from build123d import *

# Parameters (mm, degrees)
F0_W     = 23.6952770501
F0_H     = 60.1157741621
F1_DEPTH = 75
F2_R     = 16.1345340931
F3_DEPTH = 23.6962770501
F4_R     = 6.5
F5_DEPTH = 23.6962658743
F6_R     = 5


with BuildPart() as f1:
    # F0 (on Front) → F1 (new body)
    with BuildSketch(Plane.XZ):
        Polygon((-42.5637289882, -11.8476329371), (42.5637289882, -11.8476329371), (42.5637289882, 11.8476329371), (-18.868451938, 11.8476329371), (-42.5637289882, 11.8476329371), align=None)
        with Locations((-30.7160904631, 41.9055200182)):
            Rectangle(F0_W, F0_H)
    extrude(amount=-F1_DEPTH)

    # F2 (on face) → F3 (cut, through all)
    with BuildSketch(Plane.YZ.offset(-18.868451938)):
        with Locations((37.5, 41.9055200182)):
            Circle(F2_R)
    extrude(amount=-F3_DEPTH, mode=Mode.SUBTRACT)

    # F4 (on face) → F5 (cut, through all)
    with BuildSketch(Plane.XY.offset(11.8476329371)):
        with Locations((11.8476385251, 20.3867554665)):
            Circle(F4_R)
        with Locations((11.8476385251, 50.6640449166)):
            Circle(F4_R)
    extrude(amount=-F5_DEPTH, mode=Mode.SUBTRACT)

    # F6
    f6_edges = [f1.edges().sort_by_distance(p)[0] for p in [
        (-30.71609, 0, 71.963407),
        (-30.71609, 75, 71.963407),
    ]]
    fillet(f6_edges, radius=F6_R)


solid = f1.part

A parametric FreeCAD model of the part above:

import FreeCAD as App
import Part
import Sketcher
from FreeCAD import Vector
Q = App.Units.Quantity


def edges_at(feature, points):
    """Names of the edges that pass closest to the given points."""
    edges = feature.Shape.Edges
    near = lambda p: min(range(len(edges)), key=lambda i: edges[i].distToShape(Part.Vertex(*p))[0])
    return sorted({f"Edge{near(p) + 1}" for p in points})

doc = App.newDocument("Part")
params = doc.addObject("Spreadsheet::Sheet", "Params")
for row, (alias, value) in enumerate([
    ("pad1_length", "75 mm"),
    ("sketch3_diameter", "13 mm"),
    ("fillet_radius", "5 mm"),
], start=1):
    params.set(f"A{row}", alias)
    params.set(f"B{row}", "=" + value)
    params.setAlias(f"B{row}", alias)

body = doc.addObject("PartDesign::Body", "Body")

# Sketch on XZ plane
sketch1 = body.newObject("Sketcher::SketchObject", "Sketch")
sketch1.AttachmentSupport = (doc.getObject("XZ_Plane"), [""])
sketch1.MapMode = "FlatFace"
sketch1.addGeometry([
    Part.LineSegment(Vector(-42.563729, -11.847633, 0), Vector(42.563729, -11.847633, 0)),  # 0
    Part.LineSegment(Vector(42.563729, -11.847633, 0), Vector(42.563729, 11.847633, 0)),  # 1
    Part.LineSegment(Vector(42.563729, 11.847633, 0), Vector(-18.868452, 11.847633, 0)),  # 2
    Part.LineSegment(Vector(-18.868452, 11.847633, 0), Vector(-18.868452, 71.963407, 0)),  # 3
    Part.LineSegment(Vector(-18.868452, 71.963407, 0), Vector(-42.563729, 71.963407, 0)),  # 4
    Part.LineSegment(Vector(-42.563729, 71.963407, 0), Vector(-42.563729, -11.847633, 0)),  # 5
], False)
sketch1.addConstraint([
    Sketcher.Constraint("Coincident", 0, 2, 1, 1),
    Sketcher.Constraint("Coincident", 1, 2, 2, 1),
    Sketcher.Constraint("Coincident", 2, 2, 3, 1),
    Sketcher.Constraint("Coincident", 3, 2, 4, 1),
    Sketcher.Constraint("Coincident", 4, 2, 5, 1),
    Sketcher.Constraint("Coincident", 5, 2, 0, 1),
    Sketcher.Constraint("Horizontal", 0),
    Sketcher.Constraint("Vertical", 1),
    Sketcher.Constraint("Horizontal", 2),
    Sketcher.Constraint("Vertical", 3),
    Sketcher.Constraint("Horizontal", 4),
    Sketcher.Constraint("Vertical", 5),
    Sketcher.Constraint("Symmetric", 1, 2, 5, 2, -1, 1),
    Sketcher.Constraint("DistanceX", 2, 2, 2, 1, Q("61.432181 mm")),
    Sketcher.Constraint("DistanceY", 5, 2, 5, 1, Q("83.81104 mm")),
    Sketcher.Constraint("DistanceX", 0, 1, 0, 2, Q("85.127458 mm")),
    Sketcher.Constraint("DistanceY", 1, 1, 1, 2, Q("23.695266 mm")),
])
pad1 = body.newObject("PartDesign::Pad", "Pad")
pad1.Profile = sketch1
pad1.setExpression("Length", "Params.pad1_length")
pad1.Reversed = True

# Sketch on YZ plane
sketch2 = body.newObject("Sketcher::SketchObject", "Sketch001")
sketch2.AttachmentSupport = (doc.getObject("YZ_Plane"), [""])
sketch2.MapMode = "FlatFace"
sketch2.AttachmentOffset = App.Placement(Vector(0, 0, -18.868452), App.Rotation())
sketch2.addGeometry(Part.Circle(Vector(37.5, 41.90552, 0), Vector(0, 0, 1), 16.134534), False)
sketch2.addConstraint([
    Sketcher.Constraint("DistanceX", -1, 1, 0, 3, Q("37.5 mm")),
    Sketcher.Constraint("Diameter", 0, Q("32.269068 mm")),
    Sketcher.Constraint("DistanceY", -1, 1, 0, 3, Q("41.90552 mm")),
])
pocket1 = body.newObject("PartDesign::Pocket", "Pocket")
pocket1.Profile = sketch2
pocket1.Type = "ThroughAll"

# Sketch on XY plane
sketch3 = body.newObject("Sketcher::SketchObject", "Sketch002")
sketch3.AttachmentSupport = (doc.getObject("XY_Plane"), [""])
sketch3.MapMode = "FlatFace"
sketch3.AttachmentOffset = App.Placement(Vector(0, 0, 11.847633), App.Rotation())
sketch3.addGeometry([
    Part.Circle(Vector(11.847639, 20.386755, 0), Vector(0, 0, 1), 6.5),
    Part.Circle(Vector(11.847639, 50.664045, 0), Vector(0, 0, 1), 6.5),
], False)
sketch3.addConstraint([
    Sketcher.Constraint("Equal", 0, 1),
    Sketcher.Constraint("Vertical", 0, 3, 1, 3),
    Sketcher.Constraint("Diameter", 0, Q("13 mm")),
    Sketcher.Constraint("DistanceX", -1, 1, 0, 3, Q("11.847639 mm")),
    Sketcher.Constraint("DistanceY", 0, 3, 1, 3, Q("30.277289 mm")),
    Sketcher.Constraint("DistanceY", -1, 1, 0, 3, Q("20.386755 mm")),
])
sketch3.setExpression("Constraints[2]", "Params.sketch3_diameter")
pocket2 = body.newObject("PartDesign::Pocket", "Pocket001")
pocket2.Profile = sketch3
pocket2.Type = "ThroughAll"
doc.recompute()

fillet = body.newObject("PartDesign::Fillet", "Fillet")
fillet.Base = (pocket2, edges_at(pocket2, [(-30.716, 0, 71.963), (-30.716, 75, 71.963)]))
fillet.setExpression("Radius", "Params.fillet_radius")

doc.recompute()
